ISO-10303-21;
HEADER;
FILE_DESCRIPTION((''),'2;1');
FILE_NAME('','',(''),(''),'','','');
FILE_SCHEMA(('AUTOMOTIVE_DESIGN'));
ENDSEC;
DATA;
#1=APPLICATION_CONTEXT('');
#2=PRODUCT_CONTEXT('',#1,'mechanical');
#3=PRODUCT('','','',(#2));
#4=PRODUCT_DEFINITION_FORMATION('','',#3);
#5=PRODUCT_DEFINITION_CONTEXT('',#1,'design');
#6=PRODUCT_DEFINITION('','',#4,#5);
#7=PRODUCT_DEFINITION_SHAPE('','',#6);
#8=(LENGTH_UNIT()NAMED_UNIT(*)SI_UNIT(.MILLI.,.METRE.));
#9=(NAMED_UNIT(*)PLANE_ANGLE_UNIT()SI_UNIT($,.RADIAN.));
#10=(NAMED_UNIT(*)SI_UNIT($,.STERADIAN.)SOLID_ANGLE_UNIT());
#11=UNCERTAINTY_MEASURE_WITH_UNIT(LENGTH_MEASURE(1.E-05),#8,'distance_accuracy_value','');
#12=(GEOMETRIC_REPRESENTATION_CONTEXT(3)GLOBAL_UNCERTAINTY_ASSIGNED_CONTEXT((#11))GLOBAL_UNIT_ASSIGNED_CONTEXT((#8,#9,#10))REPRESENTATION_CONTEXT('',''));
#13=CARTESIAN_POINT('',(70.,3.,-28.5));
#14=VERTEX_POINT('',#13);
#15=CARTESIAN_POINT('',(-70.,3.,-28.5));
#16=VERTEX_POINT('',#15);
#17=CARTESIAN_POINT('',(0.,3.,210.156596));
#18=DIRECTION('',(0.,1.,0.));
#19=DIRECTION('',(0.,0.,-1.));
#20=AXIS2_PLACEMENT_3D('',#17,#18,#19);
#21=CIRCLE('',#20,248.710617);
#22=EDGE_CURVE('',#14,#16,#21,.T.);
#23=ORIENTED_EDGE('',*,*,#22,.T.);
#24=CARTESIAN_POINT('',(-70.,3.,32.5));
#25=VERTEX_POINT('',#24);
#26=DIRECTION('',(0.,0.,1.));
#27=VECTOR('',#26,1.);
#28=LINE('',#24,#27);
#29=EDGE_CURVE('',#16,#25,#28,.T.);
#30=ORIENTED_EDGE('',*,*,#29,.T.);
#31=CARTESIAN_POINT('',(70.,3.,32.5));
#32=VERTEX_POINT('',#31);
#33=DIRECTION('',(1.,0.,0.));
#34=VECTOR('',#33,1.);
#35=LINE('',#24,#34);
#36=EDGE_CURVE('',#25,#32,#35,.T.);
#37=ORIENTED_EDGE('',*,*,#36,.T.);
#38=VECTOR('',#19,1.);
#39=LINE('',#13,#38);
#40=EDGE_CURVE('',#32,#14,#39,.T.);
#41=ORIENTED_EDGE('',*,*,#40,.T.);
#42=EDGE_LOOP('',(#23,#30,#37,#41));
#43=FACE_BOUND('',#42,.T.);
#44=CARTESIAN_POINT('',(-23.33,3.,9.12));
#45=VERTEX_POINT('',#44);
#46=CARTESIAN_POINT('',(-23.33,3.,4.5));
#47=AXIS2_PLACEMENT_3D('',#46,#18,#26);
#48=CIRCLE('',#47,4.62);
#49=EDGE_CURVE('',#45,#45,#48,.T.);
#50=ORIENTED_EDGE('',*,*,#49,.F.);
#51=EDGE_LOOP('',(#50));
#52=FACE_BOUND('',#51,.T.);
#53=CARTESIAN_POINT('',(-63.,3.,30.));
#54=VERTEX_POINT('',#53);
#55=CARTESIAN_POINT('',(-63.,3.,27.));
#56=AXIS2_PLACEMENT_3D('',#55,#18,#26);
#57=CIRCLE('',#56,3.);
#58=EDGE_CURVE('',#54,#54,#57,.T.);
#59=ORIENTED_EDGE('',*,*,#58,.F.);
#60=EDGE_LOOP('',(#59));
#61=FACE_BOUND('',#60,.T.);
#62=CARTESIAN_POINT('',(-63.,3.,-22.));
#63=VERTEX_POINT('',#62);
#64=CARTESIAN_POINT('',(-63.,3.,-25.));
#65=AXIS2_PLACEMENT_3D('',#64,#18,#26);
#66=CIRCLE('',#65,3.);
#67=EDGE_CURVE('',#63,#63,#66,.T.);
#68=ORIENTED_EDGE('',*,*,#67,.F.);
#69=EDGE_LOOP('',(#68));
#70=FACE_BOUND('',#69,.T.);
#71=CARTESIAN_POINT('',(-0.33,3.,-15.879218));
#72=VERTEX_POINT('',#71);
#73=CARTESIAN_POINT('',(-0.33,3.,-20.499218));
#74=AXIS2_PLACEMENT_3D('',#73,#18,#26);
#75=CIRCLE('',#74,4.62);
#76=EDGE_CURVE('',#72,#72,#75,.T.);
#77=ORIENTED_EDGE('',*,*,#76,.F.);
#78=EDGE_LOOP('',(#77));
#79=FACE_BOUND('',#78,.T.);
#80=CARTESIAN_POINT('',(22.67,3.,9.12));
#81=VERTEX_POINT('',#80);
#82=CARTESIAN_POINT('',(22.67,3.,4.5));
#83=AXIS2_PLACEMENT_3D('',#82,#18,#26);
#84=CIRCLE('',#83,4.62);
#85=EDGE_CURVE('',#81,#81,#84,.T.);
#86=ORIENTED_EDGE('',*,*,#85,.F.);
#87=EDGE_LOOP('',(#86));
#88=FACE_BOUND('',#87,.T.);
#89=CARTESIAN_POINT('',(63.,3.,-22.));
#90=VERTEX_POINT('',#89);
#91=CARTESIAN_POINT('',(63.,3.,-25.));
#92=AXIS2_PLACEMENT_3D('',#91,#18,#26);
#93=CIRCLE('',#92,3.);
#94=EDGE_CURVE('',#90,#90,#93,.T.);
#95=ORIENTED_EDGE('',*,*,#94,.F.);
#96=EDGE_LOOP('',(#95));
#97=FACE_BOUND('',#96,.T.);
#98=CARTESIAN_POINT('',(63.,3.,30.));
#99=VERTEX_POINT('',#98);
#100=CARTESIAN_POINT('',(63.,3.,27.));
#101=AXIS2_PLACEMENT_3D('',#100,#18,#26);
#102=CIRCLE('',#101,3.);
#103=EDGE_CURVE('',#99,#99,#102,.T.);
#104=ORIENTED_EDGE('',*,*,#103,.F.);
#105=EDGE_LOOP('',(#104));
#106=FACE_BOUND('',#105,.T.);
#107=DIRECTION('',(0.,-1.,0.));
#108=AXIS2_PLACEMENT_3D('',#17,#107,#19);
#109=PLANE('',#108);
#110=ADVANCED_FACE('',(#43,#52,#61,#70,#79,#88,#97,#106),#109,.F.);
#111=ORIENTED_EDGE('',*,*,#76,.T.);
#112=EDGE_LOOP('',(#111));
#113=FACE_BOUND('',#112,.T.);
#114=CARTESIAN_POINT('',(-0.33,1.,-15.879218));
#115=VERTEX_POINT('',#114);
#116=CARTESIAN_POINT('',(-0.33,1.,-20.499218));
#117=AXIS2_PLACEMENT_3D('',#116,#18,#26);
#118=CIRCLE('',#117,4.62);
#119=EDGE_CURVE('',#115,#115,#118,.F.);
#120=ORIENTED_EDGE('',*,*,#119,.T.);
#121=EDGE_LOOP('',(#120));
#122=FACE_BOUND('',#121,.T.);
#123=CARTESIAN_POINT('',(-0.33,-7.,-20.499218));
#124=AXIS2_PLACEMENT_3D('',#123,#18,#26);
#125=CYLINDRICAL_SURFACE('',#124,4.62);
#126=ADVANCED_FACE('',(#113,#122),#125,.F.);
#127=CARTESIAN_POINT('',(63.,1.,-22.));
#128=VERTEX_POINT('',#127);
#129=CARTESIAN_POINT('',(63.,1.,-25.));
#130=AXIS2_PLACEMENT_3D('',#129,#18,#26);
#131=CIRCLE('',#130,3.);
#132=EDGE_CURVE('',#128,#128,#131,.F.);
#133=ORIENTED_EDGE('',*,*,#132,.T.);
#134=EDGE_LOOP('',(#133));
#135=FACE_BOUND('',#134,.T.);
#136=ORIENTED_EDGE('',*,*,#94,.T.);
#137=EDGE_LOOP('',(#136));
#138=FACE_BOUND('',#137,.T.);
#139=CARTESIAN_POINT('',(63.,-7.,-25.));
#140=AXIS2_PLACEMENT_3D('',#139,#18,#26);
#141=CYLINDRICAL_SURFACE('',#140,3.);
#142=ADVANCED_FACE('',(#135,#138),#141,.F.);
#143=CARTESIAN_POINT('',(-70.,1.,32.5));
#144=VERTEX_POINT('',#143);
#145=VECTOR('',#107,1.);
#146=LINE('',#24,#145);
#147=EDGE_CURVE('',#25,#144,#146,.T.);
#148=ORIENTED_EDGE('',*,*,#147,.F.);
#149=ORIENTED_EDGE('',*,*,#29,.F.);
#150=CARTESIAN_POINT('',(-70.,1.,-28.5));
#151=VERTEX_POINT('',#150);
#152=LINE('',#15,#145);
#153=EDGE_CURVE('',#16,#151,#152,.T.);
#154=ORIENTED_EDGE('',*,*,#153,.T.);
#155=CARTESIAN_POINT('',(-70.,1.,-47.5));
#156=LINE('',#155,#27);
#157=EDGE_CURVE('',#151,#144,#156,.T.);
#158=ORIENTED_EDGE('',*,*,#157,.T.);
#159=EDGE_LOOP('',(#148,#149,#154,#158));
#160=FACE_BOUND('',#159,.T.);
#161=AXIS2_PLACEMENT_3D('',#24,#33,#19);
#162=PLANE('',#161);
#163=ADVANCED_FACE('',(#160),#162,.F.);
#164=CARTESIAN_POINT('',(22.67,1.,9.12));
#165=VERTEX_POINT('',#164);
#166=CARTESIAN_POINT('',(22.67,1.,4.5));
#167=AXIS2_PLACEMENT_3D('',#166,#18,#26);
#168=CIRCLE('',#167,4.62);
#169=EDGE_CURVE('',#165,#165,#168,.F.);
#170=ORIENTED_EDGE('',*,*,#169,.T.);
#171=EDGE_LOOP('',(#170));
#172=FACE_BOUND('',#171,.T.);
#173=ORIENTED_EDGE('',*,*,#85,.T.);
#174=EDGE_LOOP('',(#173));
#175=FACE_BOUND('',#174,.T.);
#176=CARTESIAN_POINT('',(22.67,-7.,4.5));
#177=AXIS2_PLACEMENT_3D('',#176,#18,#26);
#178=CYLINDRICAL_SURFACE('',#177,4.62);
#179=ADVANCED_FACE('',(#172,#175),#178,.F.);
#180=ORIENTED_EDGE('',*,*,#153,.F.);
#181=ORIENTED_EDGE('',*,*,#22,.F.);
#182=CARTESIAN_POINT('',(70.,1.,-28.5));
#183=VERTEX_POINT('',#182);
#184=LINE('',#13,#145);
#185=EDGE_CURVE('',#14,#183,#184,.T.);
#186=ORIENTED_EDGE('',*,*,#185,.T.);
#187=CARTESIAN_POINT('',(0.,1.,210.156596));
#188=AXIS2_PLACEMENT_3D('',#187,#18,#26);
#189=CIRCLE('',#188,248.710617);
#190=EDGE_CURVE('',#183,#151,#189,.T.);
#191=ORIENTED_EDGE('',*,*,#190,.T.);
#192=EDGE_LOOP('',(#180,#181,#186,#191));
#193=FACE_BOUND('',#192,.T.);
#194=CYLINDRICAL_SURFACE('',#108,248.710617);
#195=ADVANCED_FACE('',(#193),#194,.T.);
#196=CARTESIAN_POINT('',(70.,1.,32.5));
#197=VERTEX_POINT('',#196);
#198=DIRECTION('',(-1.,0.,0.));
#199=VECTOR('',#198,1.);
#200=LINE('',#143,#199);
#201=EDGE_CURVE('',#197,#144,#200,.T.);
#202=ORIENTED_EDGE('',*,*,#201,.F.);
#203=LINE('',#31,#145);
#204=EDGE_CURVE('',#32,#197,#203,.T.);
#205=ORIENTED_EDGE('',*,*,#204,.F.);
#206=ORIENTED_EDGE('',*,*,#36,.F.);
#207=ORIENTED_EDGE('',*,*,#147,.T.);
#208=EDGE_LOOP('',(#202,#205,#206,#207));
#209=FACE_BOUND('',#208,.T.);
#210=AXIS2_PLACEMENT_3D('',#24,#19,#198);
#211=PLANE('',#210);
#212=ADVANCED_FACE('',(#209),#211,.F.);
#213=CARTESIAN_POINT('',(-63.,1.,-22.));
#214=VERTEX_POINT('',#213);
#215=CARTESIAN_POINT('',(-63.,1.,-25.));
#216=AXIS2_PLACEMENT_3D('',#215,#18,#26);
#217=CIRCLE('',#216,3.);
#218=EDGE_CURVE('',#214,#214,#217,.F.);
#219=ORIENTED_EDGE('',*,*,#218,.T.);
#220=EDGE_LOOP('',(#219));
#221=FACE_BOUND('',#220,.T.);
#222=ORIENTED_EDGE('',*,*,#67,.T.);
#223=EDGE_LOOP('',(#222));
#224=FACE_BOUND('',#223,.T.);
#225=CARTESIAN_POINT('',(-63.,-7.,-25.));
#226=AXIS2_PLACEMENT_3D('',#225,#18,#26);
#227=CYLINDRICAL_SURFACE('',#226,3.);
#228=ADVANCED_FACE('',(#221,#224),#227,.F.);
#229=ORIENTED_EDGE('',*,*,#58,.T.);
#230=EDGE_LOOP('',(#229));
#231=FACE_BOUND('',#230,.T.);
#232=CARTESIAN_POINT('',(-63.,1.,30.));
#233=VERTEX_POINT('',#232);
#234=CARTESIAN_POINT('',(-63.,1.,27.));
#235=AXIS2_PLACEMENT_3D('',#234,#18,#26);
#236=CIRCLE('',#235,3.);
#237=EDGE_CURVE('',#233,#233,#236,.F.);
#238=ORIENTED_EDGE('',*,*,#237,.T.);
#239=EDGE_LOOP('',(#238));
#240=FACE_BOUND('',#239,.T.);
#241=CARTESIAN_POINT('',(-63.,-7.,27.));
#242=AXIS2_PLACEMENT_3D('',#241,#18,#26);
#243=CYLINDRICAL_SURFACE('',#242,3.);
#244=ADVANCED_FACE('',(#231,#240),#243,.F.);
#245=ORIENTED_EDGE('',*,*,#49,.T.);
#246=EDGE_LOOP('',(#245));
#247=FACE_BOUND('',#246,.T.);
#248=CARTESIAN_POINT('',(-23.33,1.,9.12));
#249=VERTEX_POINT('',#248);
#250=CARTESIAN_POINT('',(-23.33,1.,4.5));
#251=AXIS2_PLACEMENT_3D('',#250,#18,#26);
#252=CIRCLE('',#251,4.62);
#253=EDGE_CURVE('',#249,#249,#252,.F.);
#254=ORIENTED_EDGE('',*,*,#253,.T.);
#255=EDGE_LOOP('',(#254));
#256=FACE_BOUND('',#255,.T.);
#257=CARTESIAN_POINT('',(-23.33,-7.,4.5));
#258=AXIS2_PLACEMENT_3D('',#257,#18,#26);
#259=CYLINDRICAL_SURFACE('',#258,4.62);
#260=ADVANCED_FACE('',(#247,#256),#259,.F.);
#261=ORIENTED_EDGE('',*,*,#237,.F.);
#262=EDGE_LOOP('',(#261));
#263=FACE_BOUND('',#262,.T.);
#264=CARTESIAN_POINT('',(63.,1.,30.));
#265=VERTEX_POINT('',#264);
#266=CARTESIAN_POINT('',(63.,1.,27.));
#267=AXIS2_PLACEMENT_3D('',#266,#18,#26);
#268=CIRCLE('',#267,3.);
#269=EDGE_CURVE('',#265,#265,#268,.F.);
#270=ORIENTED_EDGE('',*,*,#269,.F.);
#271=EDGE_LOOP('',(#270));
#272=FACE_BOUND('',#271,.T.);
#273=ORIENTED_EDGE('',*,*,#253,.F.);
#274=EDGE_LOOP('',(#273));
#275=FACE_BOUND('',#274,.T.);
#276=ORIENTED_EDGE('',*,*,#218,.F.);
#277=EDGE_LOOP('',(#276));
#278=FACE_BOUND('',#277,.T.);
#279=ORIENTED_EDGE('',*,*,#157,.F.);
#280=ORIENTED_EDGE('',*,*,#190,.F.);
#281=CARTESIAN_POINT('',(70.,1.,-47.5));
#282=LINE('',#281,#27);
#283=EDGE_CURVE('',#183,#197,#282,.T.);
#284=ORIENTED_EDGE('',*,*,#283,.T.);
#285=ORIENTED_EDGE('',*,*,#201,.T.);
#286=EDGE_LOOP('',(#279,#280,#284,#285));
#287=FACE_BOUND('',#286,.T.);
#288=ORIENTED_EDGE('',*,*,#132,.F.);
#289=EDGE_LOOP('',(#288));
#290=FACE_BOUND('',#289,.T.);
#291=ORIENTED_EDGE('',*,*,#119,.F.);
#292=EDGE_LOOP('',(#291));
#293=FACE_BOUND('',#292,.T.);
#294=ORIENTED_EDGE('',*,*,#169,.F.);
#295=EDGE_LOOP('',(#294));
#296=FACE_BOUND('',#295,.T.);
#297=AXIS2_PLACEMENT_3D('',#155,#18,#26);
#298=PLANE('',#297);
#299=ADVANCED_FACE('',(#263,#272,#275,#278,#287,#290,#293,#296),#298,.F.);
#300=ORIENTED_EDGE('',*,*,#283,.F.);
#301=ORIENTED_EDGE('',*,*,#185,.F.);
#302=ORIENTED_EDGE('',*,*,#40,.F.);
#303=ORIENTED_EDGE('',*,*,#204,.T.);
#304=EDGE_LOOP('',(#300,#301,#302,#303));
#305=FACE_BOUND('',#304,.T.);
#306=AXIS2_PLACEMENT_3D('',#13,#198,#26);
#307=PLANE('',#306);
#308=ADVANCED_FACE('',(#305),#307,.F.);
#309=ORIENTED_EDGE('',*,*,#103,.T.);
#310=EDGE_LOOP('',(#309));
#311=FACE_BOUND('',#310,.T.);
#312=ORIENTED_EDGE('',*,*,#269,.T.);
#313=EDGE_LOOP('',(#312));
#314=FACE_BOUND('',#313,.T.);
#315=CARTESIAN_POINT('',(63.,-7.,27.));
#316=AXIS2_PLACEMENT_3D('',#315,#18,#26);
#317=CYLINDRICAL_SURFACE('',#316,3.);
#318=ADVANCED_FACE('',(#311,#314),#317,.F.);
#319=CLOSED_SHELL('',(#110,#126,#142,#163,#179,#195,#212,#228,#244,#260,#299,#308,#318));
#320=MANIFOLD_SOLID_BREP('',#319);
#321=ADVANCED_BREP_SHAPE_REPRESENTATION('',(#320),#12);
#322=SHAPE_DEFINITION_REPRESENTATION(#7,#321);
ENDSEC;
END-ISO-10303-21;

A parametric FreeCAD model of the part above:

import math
import FreeCAD as App
import Part
import Sketcher
Q = App.Units.Quantity

doc = App.newDocument("Part")
body = doc.addObject("PartDesign::Body", "Body")

# Sketch on XZ plane
sketch1 = body.newObject("Sketcher::SketchObject", "Sketch")
sketch1.AttachmentSupport = (doc.getObject("XZ_Plane"), [""])
sketch1.MapMode = "FlatFace"
sketch1.addGeometry([
    Part.LineSegment(App.Vector(70, 32, 0), App.Vector(70, -28, 0)),
    Part.ArcOfCircle(Part.Circle(App.Vector(0, 210, 0), App.Vector(0, 0, 1), 249), math.radians(-106), math.radians(-74)),
    Part.LineSegment(App.Vector(-70, -28, 0), App.Vector(-70, 32, 0)),
    Part.LineSegment(App.Vector(-70, 32, 0), App.Vector(70, 32, 0)),
], False)
sketch1.addConstraint([
    Sketcher.Constraint("Coincident", 0, 2, 1, 2),
    Sketcher.Constraint("Coincident", 1, 1, 2, 1),
    Sketcher.Constraint("Coincident", 2, 2, 3, 1),
    Sketcher.Constraint("Coincident", 3, 2, 0, 1),
    Sketcher.Constraint("Vertical", 0),
    Sketcher.Constraint("Vertical", 2),
    Sketcher.Constraint("Horizontal", 3),
    Sketcher.Constraint("Symmetric", 0, 2, 1, 1, -2),
    Sketcher.Constraint("DistanceX", 3, 1, 3, 2, Q("140 mm")),
    Sketcher.Constraint("DistanceY", 0, 2, 0, 1, Q("61 mm")),
    Sketcher.Constraint("DistanceY", 0, 2, -1, 1, Q("28.5 mm")),
    Sketcher.Constraint("Radius", 1, Q("248.710617 mm")),
])
pad1 = body.newObject("PartDesign::Pad", "Pad")
pad1.Profile = sketch1
pad1.Length = 3
pad1.Reversed = True

# Sketch on XZ plane
sketch2 = body.newObject("Sketcher::SketchObject", "Sketch001")
sketch2.AttachmentSupport = (doc.getObject("XZ_Plane"), [""])
sketch2.MapMode = "FlatFace"
sketch2.AttachmentOffset = App.Placement(App.Vector(0, 0, -3), App.Rotation())
sketch2.addGeometry([
    Part.Circle(App.Vector(-63, -25, 0), App.Vector(0, 0, 1), 3),
    Part.Circle(App.Vector(-63, 27, 0), App.Vector(0, 0, 1), 3),
    Part.Circle(App.Vector(63, -25, 0), App.Vector(0, 0, 1), 3),
    Part.Circle(App.Vector(63, 27, 0), App.Vector(0, 0, 1), 3),
], False)
sketch2.addConstraint([
    Sketcher.Constraint("Equal", 0, 1),
    Sketcher.Constraint("Equal", 1, 2),
    Sketcher.Constraint("Equal", 2, 3),
    Sketcher.Constraint("Symmetric", 0, 3, 2, 3, -2),
    Sketcher.Constraint("Symmetric", 1, 3, 3, 3, -2),
    Sketcher.Constraint("Vertical", 0, 3, 1, 3),
    Sketcher.Constraint("Diameter", 0, Q("6 mm")),
    Sketcher.Constraint("DistanceX", 0, 3, -1, 1, Q("63 mm")),
    Sketcher.Constraint("DistanceY", 0, 3, -1, 1, Q("25 mm")),
    Sketcher.Constraint("DistanceY", -1, 1, 1, 3, Q("27 mm")),
])
pocket1 = body.newObject("PartDesign::Pocket", "Pocket")
pocket1.Profile = sketch2
pocket1.Length = 10
pocket1.Reversed = True

# Sketch on XZ plane
sketch3 = body.newObject("Sketcher::SketchObject", "Sketch002")
sketch3.AttachmentSupport = (doc.getObject("XZ_Plane"), [""])
sketch3.MapMode = "FlatFace"
sketch3.AttachmentOffset = App.Placement(App.Vector(0, 0, -3), App.Rotation())
sketch3.addGeometry([
    Part.Circle(App.Vector(-23.3, 4.5, 0), App.Vector(0, 0, 1), 4.6),
    Part.Circle(App.Vector(22.7, 4.5, 0), App.Vector(0, 0, 1), 4.6),
    Part.Circle(App.Vector(-0.3, -20.5, 0), App.Vector(0, 0, 1), 4.6),
], False)
sketch3.addConstraint([
    Sketcher.Constraint("Equal", 0, 1),
    Sketcher.Constraint("Equal", 1, 2),
    Sketcher.Constraint("Horizontal", 0, 3, 1, 3),
    Sketcher.Constraint("Diameter", 0, Q("9.24 mm")),
    Sketcher.Constraint("DistanceX", 0, 3, 1, 3, Q("46 mm")),
    Sketcher.Constraint("DistanceX", 0, 3, 2, 3, Q("23 mm")),
    Sketcher.Constraint("DistanceY", -1, 1, 0, 3, Q("4.5 mm")),
    Sketcher.Constraint("DistanceX", 0, 3, -1, 1, Q("23.33 mm")),
    Sketcher.Constraint("DistanceY", 2, 3, -1, 1, Q("20.499218 mm")),
])
pocket2 = body.newObject("PartDesign::Pocket", "Pocket001")
pocket2.Profile = sketch3
pocket2.Length = 10
pocket2.Reversed = True

# Sketch on XY plane
sketch4 = body.newObject("Sketcher::SketchObject", "Sketch003")
sketch4.AttachmentSupport = (doc.getObject("XY_Plane"), [""])
sketch4.MapMode = "FlatFace"
sketch4.AttachmentOffset = App.Placement(App.Vector(0, 0, 32.5), App.Rotation())
sketch4.addGeometry([
    Part.LineSegment(App.Vector(-70, 1, 0), App.Vector(-70, 0, 0)),
    Part.LineSegment(App.Vector(-70, 0, 0), App.Vector(70, 0, 0)),
    Part.LineSegment(App.Vector(70, 0, 0), App.Vector(70, 1, 0)),
    Part.LineSegment(App.Vector(70, 1, 0), App.Vector(-70, 1, 0)),
], False)
sketch4.addConstraint([
    Sketcher.Constraint("Coincident", 0, 2, 1, 1),
    Sketcher.Constraint("Coincident", 1, 2, 2, 1),
    Sketcher.Constraint("Coincident", 2, 2, 3, 1),
    Sketcher.Constraint("Coincident", 3, 2, 0, 1),
    Sketcher.Constraint("Vertical", 0),
    Sketcher.Constraint("Horizontal", 1),
    Sketcher.Constraint("Vertical", 2),
    Sketcher.Constraint("Horizontal", 3),
    Sketcher.Constraint("Symmetric", 0, 2, 1, 2, -1, 1),
    Sketcher.Constraint("DistanceX", 1, 1, 1, 2, Q("140 mm")),
    Sketcher.Constraint("DistanceY", 0, 2, 0, 1, Q("1 mm")),
])
pocket3 = body.newObject("PartDesign::Pocket", "Pocket002")
pocket3.Profile = sketch4
pocket3.Length = 80

doc.recompute()
